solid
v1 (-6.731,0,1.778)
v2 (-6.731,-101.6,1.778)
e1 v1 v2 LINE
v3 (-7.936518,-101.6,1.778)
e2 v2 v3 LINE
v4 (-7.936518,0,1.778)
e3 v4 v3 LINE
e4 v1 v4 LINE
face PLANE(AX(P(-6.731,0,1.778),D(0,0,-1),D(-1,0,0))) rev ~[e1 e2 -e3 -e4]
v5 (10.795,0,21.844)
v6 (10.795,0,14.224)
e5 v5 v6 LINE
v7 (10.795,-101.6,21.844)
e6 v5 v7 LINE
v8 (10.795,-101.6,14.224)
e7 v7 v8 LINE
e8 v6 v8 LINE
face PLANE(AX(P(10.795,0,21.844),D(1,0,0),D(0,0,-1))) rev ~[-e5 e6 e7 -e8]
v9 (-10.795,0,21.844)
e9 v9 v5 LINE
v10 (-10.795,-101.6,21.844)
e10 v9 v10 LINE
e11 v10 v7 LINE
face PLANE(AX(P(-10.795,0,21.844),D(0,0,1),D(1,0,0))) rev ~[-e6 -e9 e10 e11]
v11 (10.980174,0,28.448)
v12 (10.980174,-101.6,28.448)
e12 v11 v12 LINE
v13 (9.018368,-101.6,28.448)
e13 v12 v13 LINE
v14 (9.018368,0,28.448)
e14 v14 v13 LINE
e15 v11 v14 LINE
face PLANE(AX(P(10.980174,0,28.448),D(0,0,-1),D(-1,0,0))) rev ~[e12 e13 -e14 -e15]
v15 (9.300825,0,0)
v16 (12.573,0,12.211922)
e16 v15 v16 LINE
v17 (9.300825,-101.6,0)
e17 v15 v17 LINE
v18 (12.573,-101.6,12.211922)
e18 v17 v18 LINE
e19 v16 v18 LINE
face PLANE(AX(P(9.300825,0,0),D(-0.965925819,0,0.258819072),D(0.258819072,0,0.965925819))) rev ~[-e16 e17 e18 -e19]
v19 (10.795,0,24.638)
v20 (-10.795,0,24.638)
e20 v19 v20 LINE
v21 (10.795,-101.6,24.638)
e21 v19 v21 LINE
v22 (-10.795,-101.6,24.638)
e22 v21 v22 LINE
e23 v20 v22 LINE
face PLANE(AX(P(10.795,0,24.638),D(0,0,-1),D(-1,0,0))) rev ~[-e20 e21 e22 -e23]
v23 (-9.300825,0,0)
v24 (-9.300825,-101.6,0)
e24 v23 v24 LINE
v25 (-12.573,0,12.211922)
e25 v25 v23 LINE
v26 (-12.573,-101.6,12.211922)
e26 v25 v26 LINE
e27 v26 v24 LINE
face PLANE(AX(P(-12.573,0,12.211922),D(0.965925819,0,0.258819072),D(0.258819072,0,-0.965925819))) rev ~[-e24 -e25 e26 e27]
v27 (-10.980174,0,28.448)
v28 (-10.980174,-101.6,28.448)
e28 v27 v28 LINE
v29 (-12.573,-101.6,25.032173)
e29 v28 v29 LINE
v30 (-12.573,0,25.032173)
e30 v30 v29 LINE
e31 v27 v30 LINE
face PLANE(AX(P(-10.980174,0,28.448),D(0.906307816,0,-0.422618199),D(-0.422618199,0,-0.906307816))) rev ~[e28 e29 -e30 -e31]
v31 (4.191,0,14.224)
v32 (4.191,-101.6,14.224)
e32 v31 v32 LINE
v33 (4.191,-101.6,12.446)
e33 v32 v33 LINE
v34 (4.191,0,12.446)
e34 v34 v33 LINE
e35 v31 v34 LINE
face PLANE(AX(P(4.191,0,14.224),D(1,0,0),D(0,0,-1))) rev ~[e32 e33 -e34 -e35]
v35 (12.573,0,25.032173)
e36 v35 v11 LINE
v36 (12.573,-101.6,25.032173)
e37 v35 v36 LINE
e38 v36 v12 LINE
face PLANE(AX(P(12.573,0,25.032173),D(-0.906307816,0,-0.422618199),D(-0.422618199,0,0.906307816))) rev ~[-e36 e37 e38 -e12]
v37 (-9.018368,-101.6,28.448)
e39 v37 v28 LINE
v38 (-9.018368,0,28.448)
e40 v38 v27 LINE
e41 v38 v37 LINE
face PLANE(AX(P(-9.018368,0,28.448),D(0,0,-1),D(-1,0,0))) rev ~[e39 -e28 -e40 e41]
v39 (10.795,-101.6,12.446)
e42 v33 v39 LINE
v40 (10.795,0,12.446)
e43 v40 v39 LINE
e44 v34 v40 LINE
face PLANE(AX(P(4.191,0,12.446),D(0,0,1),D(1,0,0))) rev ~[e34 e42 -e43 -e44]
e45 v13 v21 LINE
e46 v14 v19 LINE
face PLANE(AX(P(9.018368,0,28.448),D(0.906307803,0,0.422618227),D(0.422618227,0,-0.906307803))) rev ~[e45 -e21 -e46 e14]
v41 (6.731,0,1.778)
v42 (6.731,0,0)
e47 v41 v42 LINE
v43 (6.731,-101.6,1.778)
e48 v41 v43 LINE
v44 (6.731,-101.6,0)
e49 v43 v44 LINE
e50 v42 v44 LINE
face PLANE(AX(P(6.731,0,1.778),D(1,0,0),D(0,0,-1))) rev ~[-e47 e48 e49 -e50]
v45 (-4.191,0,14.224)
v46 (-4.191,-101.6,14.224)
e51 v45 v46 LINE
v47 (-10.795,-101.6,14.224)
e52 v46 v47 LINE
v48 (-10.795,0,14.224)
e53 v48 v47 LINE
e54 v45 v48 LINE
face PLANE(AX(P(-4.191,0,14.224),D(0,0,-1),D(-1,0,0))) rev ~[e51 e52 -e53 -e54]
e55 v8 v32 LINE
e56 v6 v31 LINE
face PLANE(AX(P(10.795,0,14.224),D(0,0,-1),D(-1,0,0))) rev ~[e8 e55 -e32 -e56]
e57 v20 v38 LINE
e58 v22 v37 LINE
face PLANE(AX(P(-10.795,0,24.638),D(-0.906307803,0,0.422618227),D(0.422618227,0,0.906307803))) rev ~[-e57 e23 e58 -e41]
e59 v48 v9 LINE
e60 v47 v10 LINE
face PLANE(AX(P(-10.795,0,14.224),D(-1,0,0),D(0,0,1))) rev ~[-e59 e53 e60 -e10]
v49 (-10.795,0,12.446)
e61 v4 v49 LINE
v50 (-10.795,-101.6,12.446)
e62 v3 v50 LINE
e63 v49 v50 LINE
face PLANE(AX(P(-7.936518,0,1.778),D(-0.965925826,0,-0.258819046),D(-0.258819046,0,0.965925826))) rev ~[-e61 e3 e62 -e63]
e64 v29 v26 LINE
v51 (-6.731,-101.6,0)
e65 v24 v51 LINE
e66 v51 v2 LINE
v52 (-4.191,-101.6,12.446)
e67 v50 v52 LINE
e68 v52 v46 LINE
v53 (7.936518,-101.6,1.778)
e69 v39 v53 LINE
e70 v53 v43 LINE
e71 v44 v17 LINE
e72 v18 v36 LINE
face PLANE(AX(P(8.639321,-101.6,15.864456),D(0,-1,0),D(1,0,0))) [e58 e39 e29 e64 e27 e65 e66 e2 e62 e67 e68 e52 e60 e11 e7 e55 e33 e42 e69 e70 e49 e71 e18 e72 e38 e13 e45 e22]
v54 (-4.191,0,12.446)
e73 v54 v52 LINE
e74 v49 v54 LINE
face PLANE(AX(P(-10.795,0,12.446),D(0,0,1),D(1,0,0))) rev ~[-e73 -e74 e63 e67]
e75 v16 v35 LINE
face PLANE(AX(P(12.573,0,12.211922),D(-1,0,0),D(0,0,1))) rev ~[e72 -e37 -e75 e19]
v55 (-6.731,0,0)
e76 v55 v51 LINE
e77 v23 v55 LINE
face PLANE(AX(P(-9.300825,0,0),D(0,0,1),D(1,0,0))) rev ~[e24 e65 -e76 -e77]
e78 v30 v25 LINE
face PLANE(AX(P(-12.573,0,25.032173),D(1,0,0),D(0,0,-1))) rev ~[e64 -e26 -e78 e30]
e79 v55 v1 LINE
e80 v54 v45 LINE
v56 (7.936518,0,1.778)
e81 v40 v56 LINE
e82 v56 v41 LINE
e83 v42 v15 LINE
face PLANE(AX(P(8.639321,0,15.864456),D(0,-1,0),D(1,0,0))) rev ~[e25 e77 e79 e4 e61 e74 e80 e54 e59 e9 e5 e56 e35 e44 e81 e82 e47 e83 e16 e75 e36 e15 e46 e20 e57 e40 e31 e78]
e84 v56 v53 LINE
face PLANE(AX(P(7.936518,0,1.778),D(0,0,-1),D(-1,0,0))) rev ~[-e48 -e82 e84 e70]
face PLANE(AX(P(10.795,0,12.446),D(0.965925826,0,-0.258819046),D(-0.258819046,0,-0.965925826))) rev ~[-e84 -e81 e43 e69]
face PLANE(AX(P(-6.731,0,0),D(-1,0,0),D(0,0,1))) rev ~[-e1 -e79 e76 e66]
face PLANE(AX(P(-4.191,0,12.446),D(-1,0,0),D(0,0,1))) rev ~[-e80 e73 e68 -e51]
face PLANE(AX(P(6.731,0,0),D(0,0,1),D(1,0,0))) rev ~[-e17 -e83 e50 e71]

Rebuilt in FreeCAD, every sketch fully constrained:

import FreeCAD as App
import Part
import Sketcher

V = App.Vector
Q = App.Units.Quantity

doc = App.newDocument("Part")
body = doc.addObject("PartDesign::Body", "Body")

sketch1 = doc.addObject("Sketcher::SketchObject", "Sketch")
body.addObject(sketch1)
sketch1.AttachmentSupport = (doc.XZ_Plane, [""])
sketch1.MapMode = "FlatFace"
sketch1.addGeometry(Part.LineSegment(V(12.6, 25, 0), V(11, 28.4, 0)), False)
sketch1.addGeometry(Part.LineSegment(V(11, 28.4, 0), V(9, 28.4, 0)), False)
sketch1.addGeometry(Part.LineSegment(V(9, 28.4, 0), V(10.8, 24.6, 0)), False)
sketch1.addGeometry(Part.LineSegment(V(10.8, 24.6, 0), V(-10.8, 24.6, 0)), False)
sketch1.addGeometry(Part.LineSegment(V(-10.8, 24.6, 0), V(-9, 28.4, 0)), False)
sketch1.addGeometry(Part.LineSegment(V(-9, 28.4, 0), V(-11, 28.4, 0)), False)
sketch1.addGeometry(Part.LineSegment(V(-11, 28.4, 0), V(-12.6, 25, 0)), False)
sketch1.addGeometry(Part.LineSegment(V(-12.6, 25, 0), V(-12.6, 12.2, 0)), False)
sketch1.addGeometry(Part.LineSegment(V(-12.6, 12.2, 0), V(-9.3, 0, 0)), False)
sketch1.addGeometry(Part.LineSegment(V(-9.3, 0, 0), V(-6.7, 0, 0)), False)
sketch1.addGeometry(Part.LineSegment(V(-6.7, 0, 0), V(-6.7, 1.8, 0)), False)
sketch1.addGeometry(Part.LineSegment(V(-6.7, 1.8, 0), V(-7.9, 1.8, 0)), False)
sketch1.addGeometry(Part.LineSegment(V(-7.9, 1.8, 0), V(-10.8, 12.4, 0)), False)
sketch1.addGeometry(Part.LineSegment(V(-10.8, 12.4, 0), V(-4.2, 12.4, 0)), False)
sketch1.addGeometry(Part.LineSegment(V(-4.2, 12.4, 0), V(-4.2, 14.2, 0)), False)
sketch1.addGeometry(Part.LineSegment(V(-4.2, 14.2, 0), V(-10.8, 14.2, 0)), False)
sketch1.addGeometry(Part.LineSegment(V(-10.8, 14.2, 0), V(-10.8, 21.8, 0)), False)
sketch1.addGeometry(Part.LineSegment(V(-10.8, 21.8, 0), V(10.8, 21.8, 0)), False)
sketch1.addGeometry(Part.LineSegment(V(10.8, 21.8, 0), V(10.8, 14.2, 0)), False)
sketch1.addGeometry(Part.LineSegment(V(10.8, 14.2, 0), V(4.2, 14.2, 0)), False)
sketch1.addGeometry(Part.LineSegment(V(4.2, 14.2, 0), V(4.2, 12.4, 0)), False)
sketch1.addGeometry(Part.LineSegment(V(4.2, 12.4, 0), V(10.8, 12.4, 0)), False)
sketch1.addGeometry(Part.LineSegment(V(10.8, 12.4, 0), V(7.9, 1.8, 0)), False)
sketch1.addGeometry(Part.LineSegment(V(7.9, 1.8, 0), V(6.7, 1.8, 0)), False)
sketch1.addGeometry(Part.LineSegment(V(6.7, 1.8, 0), V(6.7, 0, 0)), False)
sketch1.addGeometry(Part.LineSegment(V(6.7, 0, 0), V(9.3, 0, 0)), False)
sketch1.addGeometry(Part.LineSegment(V(9.3, 0, 0), V(12.6, 12.2, 0)), False)
sketch1.addGeometry(Part.LineSegment(V(12.6, 12.2, 0), V(12.6, 25, 0)), False)
sketch1.addConstraint(Sketcher.Constraint("Coincident", 0, 2, 1, 1))
sketch1.addConstraint(Sketcher.Constraint("Coincident", 1, 2, 2, 1))
sketch1.addConstraint(Sketcher.Constraint("Coincident", 2, 2, 3, 1))
sketch1.addConstraint(Sketcher.Constraint("Coincident", 3, 2, 4, 1))
sketch1.addConstraint(Sketcher.Constraint("Coincident", 4, 2, 5, 1))
sketch1.addConstraint(Sketcher.Constraint("Coincident", 5, 2, 6, 1))
sketch1.addConstraint(Sketcher.Constraint("Coincident", 6, 2, 7, 1))
sketch1.addConstraint(Sketcher.Constraint("Coincident", 7, 2, 8, 1))
sketch1.addConstraint(Sketcher.Constraint("Coincident", 8, 2, 9, 1))
sketch1.addConstraint(Sketcher.Constraint("Coincident", 9, 2, 10, 1))
sketch1.addConstraint(Sketcher.Constraint("Coincident", 10, 2, 11, 1))
sketch1.addConstraint(Sketcher.Constraint("Coincident", 11, 2, 12, 1))
sketch1.addConstraint(Sketcher.Constraint("Coincident", 12, 2, 13, 1))
sketch1.addConstraint(Sketcher.Constraint("Coincident", 13, 2, 14, 1))
sketch1.addConstraint(Sketcher.Constraint("Coincident", 14, 2, 15, 1))
sketch1.addConstraint(Sketcher.Constraint("Coincident", 15, 2, 16, 1))
sketch1.addConstraint(Sketcher.Constraint("Coincident", 16, 2, 17, 1))
sketch1.addConstraint(Sketcher.Constraint("Coincident", 17, 2, 18, 1))
sketch1.addConstraint(Sketcher.Constraint("Coincident", 18, 2, 19, 1))
sketch1.addConstraint(Sketcher.Constraint("Coincident", 19, 2, 20, 1))
sketch1.addConstraint(Sketcher.Constraint("Coincident", 20, 2, 21, 1))
sketch1.addConstraint(Sketcher.Constraint("Coincident", 21, 2, 22, 1))
sketch1.addConstraint(Sketcher.Constraint("Coincident", 22, 2, 23, 1))
sketch1.addConstraint(Sketcher.Constraint("Coincident", 23, 2, 24, 1))
sketch1.addConstraint(Sketcher.Constraint("Coincident", 24, 2, 25, 1))
sketch1.addConstraint(Sketcher.Constraint("Coincident", 25, 2, 26, 1))
sketch1.addConstraint(Sketcher.Constraint("Coincident", 26, 2, 27, 1))
sketch1.addConstraint(Sketcher.Constraint("Coincident", 27, 2, 0, 1))
sketch1.addConstraint(Sketcher.Constraint("Horizontal", 1))
sketch1.addConstraint(Sketcher.Constraint("Horizontal", 3))
sketch1.addConstraint(Sketcher.Constraint("Horizontal", 5))
sketch1.addConstraint(Sketcher.Constraint("Vertical", 7))
sketch1.addConstraint(Sketcher.Constraint("Horizontal", 9))
sketch1.addConstraint(Sketcher.Constraint("Vertical", 10))
sketch1.addConstraint(Sketcher.Constraint("Horizontal", 11))
sketch1.addConstraint(Sketcher.Constraint("Horizontal", 13))
sketch1.addConstraint(Sketcher.Constraint("Vertical", 14))
sketch1.addConstraint(Sketcher.Constraint("Horizontal", 15))
sketch1.addConstraint(Sketcher.Constraint("Vertical", 16))
sketch1.addConstraint(Sketcher.Constraint("Horizontal", 17))
sketch1.addConstraint(Sketcher.Constraint("Vertical", 18))
sketch1.addConstraint(Sketcher.Constraint("Horizontal", 19))
sketch1.addConstraint(Sketcher.Constraint("Vertical", 20))
sketch1.addConstraint(Sketcher.Constraint("Horizontal", 21))
sketch1.addConstraint(Sketcher.Constraint("Horizontal", 23))
sketch1.addConstraint(Sketcher.Constraint("Vertical", 24))
sketch1.addConstraint(Sketcher.Constraint("Horizontal", 25))
sketch1.addConstraint(Sketcher.Constraint("Vertical", 27))
sketch1.addConstraint(Sketcher.Constraint("Symmetric", 9, 2, 24, 2, -1, 1))
sketch1.addConstraint(Sketcher.Constraint("Symmetric", 1, 2, 4, 2, -2))
sketch1.addConstraint(Sketcher.Constraint("Symmetric", 15, 2, 18, 2, -2))
sketch1.addConstraint(Sketcher.Constraint("Symmetric", 13, 2, 20, 2, -2))
sketch1.addConstraint(Sketcher.Constraint("Symmetric", 11, 2, 22, 2, -2))
sketch1.addConstraint(Sketcher.Constraint("Symmetric", 8, 2, 25, 2, -2))
sketch1.addConstraint(Sketcher.Constraint("Symmetric", 7, 2, 26, 2, -2))
sketch1.addConstraint(Sketcher.Constraint("Parallel", 0, 2))
sketch1.addConstraint(Sketcher.Constraint("Parallel", 4, 6))
sketch1.addConstraint(Sketcher.Constraint("Parallel", 8, 12))
sketch1.addConstraint(Sketcher.Constraint("Parallel", 22, 26))
sketch1.addConstraint(Sketcher.Constraint("Horizontal", 6, 2, 27, 2))
sketch1.addConstraint(Sketcher.Constraint("Vertical", 3, 2, 12, 2))
sketch1.addConstraint(Sketcher.Constraint("Vertical", 12, 2, 15, 2))
sketch1.addConstraint(Sketcher.Constraint("Vertical", 2, 2, 17, 2))
sketch1.addConstraint(Sketcher.Constraint("Equal", 10, 14))
sketch1.addConstraint(Sketcher.Constraint("DistanceY", 16, 1, 16, 2, Q("0.3 in")))
sketch1.addConstraint(Sketcher.Constraint("Angle", 0, Q("114.999996 deg")))
sketch1.addConstraint(Sketcher.Constraint("Angle", 8, Q("-74.999998 deg")))
sketch1.addConstraint(Sketcher.Constraint("DistanceX", 3, 2, 3, 1, Q("0.85 in")))
sketch1.addConstraint(Sketcher.Constraint("DistanceX", 13, 1, 13, 2, Q("0.26 in")))
sketch1.addConstraint(Sketcher.Constraint("DistanceY", 10, 1, 10, 2, Q("0.07 in")))
sketch1.addConstraint(Sketcher.Constraint("DistanceY", 10, 2, 3, 2, Q("0.9 in")))
sketch1.addConstraint(Sketcher.Constraint("DistanceX", 10, 2, 13, 2, Q("0.1 in")))
sketch1.addConstraint(Sketcher.Constraint("DistanceY", -1, 1, 0, 2, Q("1.12 in")))
sketch1.addConstraint(Sketcher.Constraint("DistanceY", -1, 1, 12, 2, Q("0.49 in")))
sketch1.addConstraint(Sketcher.Constraint("DistanceX", 6, 2, 3, 2, Q("0.07 in")))
sketch1.addConstraint(Sketcher.Constraint("DistanceY", 7, 2, 7, 1, 12.820251))
sketch1.addConstraint(Sketcher.Constraint("DistanceX", 1, 2, 1, 1, 1.961806))
pad1 = doc.addObject("PartDesign::Pad", "Pad")
body.addObject(pad1)
pad1.Profile = sketch1
pad1.Length = Q("4 in")

doc.recompute()
